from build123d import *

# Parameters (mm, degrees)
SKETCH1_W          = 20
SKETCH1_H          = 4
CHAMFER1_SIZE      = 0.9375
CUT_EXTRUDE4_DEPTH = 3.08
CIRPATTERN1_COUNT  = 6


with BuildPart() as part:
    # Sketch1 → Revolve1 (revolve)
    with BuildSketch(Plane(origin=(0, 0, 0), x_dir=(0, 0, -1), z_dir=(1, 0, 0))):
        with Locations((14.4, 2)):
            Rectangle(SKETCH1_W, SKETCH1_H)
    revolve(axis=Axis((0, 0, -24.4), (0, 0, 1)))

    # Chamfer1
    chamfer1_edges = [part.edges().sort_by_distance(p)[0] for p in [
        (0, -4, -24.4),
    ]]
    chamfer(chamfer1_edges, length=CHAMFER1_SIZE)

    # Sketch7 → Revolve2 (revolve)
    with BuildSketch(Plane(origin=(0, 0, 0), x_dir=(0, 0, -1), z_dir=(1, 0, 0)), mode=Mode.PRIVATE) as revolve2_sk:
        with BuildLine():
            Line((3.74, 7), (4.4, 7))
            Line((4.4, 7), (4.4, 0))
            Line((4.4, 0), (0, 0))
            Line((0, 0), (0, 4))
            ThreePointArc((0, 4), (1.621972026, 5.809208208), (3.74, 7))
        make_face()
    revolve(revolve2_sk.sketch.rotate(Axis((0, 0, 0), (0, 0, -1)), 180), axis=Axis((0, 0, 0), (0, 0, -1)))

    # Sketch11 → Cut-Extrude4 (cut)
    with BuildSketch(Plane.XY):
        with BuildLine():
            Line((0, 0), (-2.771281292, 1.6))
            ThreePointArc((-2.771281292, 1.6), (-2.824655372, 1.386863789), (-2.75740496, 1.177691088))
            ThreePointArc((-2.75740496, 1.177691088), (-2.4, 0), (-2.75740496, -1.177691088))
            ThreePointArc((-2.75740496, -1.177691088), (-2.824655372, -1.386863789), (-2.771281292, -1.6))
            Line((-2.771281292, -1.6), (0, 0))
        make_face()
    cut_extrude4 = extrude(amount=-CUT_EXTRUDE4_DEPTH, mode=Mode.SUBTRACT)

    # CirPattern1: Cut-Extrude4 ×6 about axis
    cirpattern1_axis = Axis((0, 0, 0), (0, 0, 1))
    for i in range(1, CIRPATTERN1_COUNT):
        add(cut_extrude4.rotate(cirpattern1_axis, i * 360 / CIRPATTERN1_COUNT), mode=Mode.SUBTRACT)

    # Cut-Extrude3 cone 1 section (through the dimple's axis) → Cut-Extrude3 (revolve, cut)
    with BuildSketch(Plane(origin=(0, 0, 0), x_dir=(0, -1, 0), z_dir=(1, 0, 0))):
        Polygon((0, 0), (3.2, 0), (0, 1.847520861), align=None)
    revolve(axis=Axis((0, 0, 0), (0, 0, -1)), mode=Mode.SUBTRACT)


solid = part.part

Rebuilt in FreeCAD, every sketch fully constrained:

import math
import FreeCAD as App
import Part
import Sketcher
Q = App.Units.Quantity


def edges_at(feature, points):
    """Names of the edges that pass closest to the given points."""
    edges = feature.Shape.Edges
    near = lambda p: min(range(len(edges)), key=lambda i: edges[i].distToShape(Part.Vertex(*p))[0])
    return sorted({f"Edge{near(p) + 1}" for p in points})

doc = App.newDocument("Part")
params = doc.addObject("Spreadsheet::Sheet", "Params")
for row, (alias, value) in enumerate([
    ("sketch1_width", "4 mm"),
    ("sketch1_height", "20 mm"),
    ("revolution_angle", "360 deg"),
    ("chamfer_size", "0.9375 mm"),
    ("sketch2_width", "4 mm"),
    ("sketch2_width2", "7 mm"),
    ("sketch2_height", "4.4 mm"),
    ("sketch2_height2", "0.66 mm"),
    ("revolution2_angle", "360 deg"),
    ("sketch3_radius", "0.4 mm"),
    ("sketch3_length", "3.2 mm"),
    ("pocket1_length", "3.08 mm"),
    ("sketch4_width", "3.2 mm"),
    ("groove_angle", "360 deg"),
], start=1):
    params.set(f"A{row}", alias)
    params.set(f"B{row}", "=" + value)
    params.setAlias(f"B{row}", alias)

body = doc.addObject("PartDesign::Body", "Body")

# Sketch on YZ plane
sketch1 = body.newObject("Sketcher::SketchObject", "Sketch")
sketch1.AttachmentSupport = (doc.getObject("YZ_Plane"), [""])
sketch1.MapMode = "FlatFace"
sketch1.addGeometry(Part.LineSegment(App.Vector(4, -4.4, 0), App.Vector(0, -4.4, 0)), False)
sketch1.addGeometry(Part.LineSegment(App.Vector(0, -4.4, 0), App.Vector(0, -24.4, 0)), False)
sketch1.addGeometry(Part.LineSegment(App.Vector(0, -24.4, 0), App.Vector(4, -24.4, 0)), False)
sketch1.addGeometry(Part.LineSegment(App.Vector(4, -24.4, 0), App.Vector(4, -4.4, 0)), False)
sketch1.addConstraint(Sketcher.Constraint("Coincident", 0, 2, 1, 1))
sketch1.addConstraint(Sketcher.Constraint("Coincident", 1, 2, 2, 1))
sketch1.addConstraint(Sketcher.Constraint("Coincident", 2, 2, 3, 1))
sketch1.addConstraint(Sketcher.Constraint("Coincident", 3, 2, 0, 1))
sketch1.addConstraint(Sketcher.Constraint("Horizontal", 0))
sketch1.addConstraint(Sketcher.Constraint("Vertical", 1))
sketch1.addConstraint(Sketcher.Constraint("Horizontal", 2))
sketch1.addConstraint(Sketcher.Constraint("Vertical", 3))
sketch1.addConstraint(Sketcher.Constraint("PointOnObject", 0, 2, -2))
sketch1.addConstraint(Sketcher.Constraint("DistanceX", 0, 2, 0, 1, 4.0))
sketch1.addConstraint(Sketcher.Constraint("DistanceY", 1, 2, 1, 1, 20.0))
sketch1.addConstraint(Sketcher.Constraint("DistanceY", 0, 2, -1, 1, 4.4))
sketch1.setExpression("Constraints[9]", "Params.sketch1_width")
sketch1.setExpression("Constraints[10]", "Params.sketch1_height")
revolution = body.newObject("PartDesign::Revolution", "Revolution")
revolution.Profile = sketch1
revolution.ReferenceAxis = (sketch1, ["V_Axis"])
revolution.setExpression("Angle", "Params.revolution_angle")
doc.recompute()

chamfer = body.newObject("PartDesign::Chamfer", "Chamfer")
chamfer.Base = (revolution, edges_at(revolution, [(0, -4, -24.4)]))
chamfer.setExpression("Size", "Params.chamfer_size")

# Sketch on YZ plane
sketch2 = body.newObject("Sketcher::SketchObject", "Sketch001")
sketch2.AttachmentSupport = (doc.getObject("YZ_Plane"), [""])
sketch2.MapMode = "FlatFace"
sketch2.addGeometry(Part.LineSegment(App.Vector(7, -4.4, 0), App.Vector(7, -3.74, 0)), False)
sketch2.addGeometry(Part.ArcOfCircle(Part.Circle(App.Vector(0, -6.281765, 0), App.Vector(0, 0, 1), 7.447185), math.radians(19.956427), math.radians(57.512494)), False)
sketch2.addGeometry(Part.LineSegment(App.Vector(4, 0, 0), App.Vector(0, 0, 0)), False)
sketch2.addGeometry(Part.LineSegment(App.Vector(0, 0, 0), App.Vector(0, -4.4, 0)), False)
sketch2.addGeometry(Part.LineSegment(App.Vector(0, -4.4, 0), App.Vector(7, -4.4, 0)), False)
sketch2.addConstraint(Sketcher.Constraint("Coincident", 0, 2, 1, 1))
sketch2.addConstraint(Sketcher.Constraint("Coincident", 1, 2, 2, 1))
sketch2.addConstraint(Sketcher.Constraint("Coincident", 2, 2, 3, 1))
sketch2.addConstraint(Sketcher.Constraint("Coincident", 3, 2, 4, 1))
sketch2.addConstraint(Sketcher.Constraint("Coincident", 4, 2, 0, 1))
sketch2.addConstraint(Sketcher.Constraint("Vertical", 0))
sketch2.addConstraint(Sketcher.Constraint("Horizontal", 2))
sketch2.addConstraint(Sketcher.Constraint("Vertical", 3))
sketch2.addConstraint(Sketcher.Constraint("Horizontal", 4))
sketch2.addConstraint(Sketcher.Constraint("Coincident", 2, 2, -1, 1))
sketch2.addConstraint(Sketcher.Constraint("PointOnObject", 1, 3, -2))
sketch2.addConstraint(Sketcher.Constraint("DistanceX", 2, 2, 2, 1, 4.0))
sketch2.addConstraint(Sketcher.Constraint("DistanceX", 4, 1, 4, 2, 7.0))
sketch2.addConstraint(Sketcher.Constraint("DistanceY", 3, 2, 3, 1, 4.4))
sketch2.addConstraint(Sketcher.Constraint("DistanceY", 0, 1, 0, 2, 0.66))
sketch2.setExpression("Constraints[11]", "Params.sketch2_width")
sketch2.setExpression("Constraints[12]", "Params.sketch2_width2")
sketch2.setExpression("Constraints[13]", "Params.sketch2_height")
sketch2.setExpression("Constraints[14]", "Params.sketch2_height2")
revolution2 = body.newObject("PartDesign::Revolution", "Revolution001")
revolution2.Profile = sketch2
revolution2.ReferenceAxis = (sketch2, ["V_Axis"])
revolution2.setExpression("Angle", "Params.revolution2_angle")

# Sketch on XY plane
sketch3 = body.newObject("Sketcher::SketchObject", "Sketch002")
sketch3.AttachmentSupport = (doc.getObject("XY_Plane"), [""])
sketch3.MapMode = "FlatFace"
sketch3.addGeometry(Part.LineSegment(App.Vector(0, 0, 0), App.Vector(-2.771281, 1.6, 0)), False)
sketch3.addGeometry(Part.ArcOfCircle(Part.Circle(App.Vector(-2.424871, 1.4, 0), App.Vector(0, 0, 1), 0.4), math.radians(150), math.radians(213.763924)), False)
sketch3.addGeometry(Part.ArcOfCircle(Part.Circle(App.Vector(-4.519017, 0, 0), App.Vector(0, 0, 1), 2.119017), math.radians(-33.763924), math.radians(33.763924)), False)
sketch3.addGeometry(Part.ArcOfCircle(Part.Circle(App.Vector(-2.424871, -1.4, 0), App.Vector(0, 0, 1), 0.4), math.radians(146.236076), math.radians(210)), False)
sketch3.addGeometry(Part.LineSegment(App.Vector(-2.771281, -1.6, 0), App.Vector(0, 0, 0)), False)
sketch3.addConstraint(Sketcher.Constraint("Coincident", 0, 2, 1, 1))
sketch3.addConstraint(Sketcher.Constraint("Tangent", 1, 2, 2, 2))
sketch3.addConstraint(Sketcher.Constraint("Tangent", 2, 1, 3, 1))
sketch3.addConstraint(Sketcher.Constraint("Coincident", 3, 2, 4, 1))
sketch3.addConstraint(Sketcher.Constraint("Coincident", 4, 2, 0, 1))
sketch3.addConstraint(Sketcher.Constraint("Coincident", 4, 2, -1, 1))
sketch3.addConstraint(Sketcher.Constraint("Equal", 1, 3))
sketch3.addConstraint(Sketcher.Constraint("Symmetric", 1, 3, 3, 3, -1))
sketch3.addConstraint(Sketcher.Constraint("Vertical", 0, 2, 3, 2))
sketch3.addConstraint(Sketcher.Constraint("Radius", 1, 0.4))
sketch3.addConstraint(Sketcher.Constraint("Angle", 0, Q("150 deg")))
sketch3.addConstraint(Sketcher.Constraint("DistanceY", 3, 3, 0, 2, 3.0))
sketch3.addConstraint(Sketcher.Constraint("Distance", 0, 3.2))
sketch3.addConstraint(Sketcher.Constraint("Radius", 2, 2.119017))
sketch3.setExpression("Constraints[9]", "Params.sketch3_radius")
sketch3.setExpression("Constraints[12]", "Params.sketch3_length")
pocket1 = body.newObject("PartDesign::Pocket", "Pocket")
pocket1.Profile = sketch3
pocket1.setExpression("Length", "Params.pocket1_length")
doc.recompute()

polarpattern = body.newObject("PartDesign::PolarPattern", "PolarPattern")
polarpattern.Originals = [pocket1]
polarpattern.Axis = (doc.getObject("Z_Axis"), [""])
polarpattern.Angle = 360
polarpattern.Occurrences = 6
body.Tip = polarpattern

# Sketch on YZ plane
sketch4 = body.newObject("Sketcher::SketchObject", "Sketch003")
sketch4.AttachmentSupport = (doc.getObject("YZ_Plane"), [""])
sketch4.MapMode = "FlatFace"
sketch4.addGeometry(Part.LineSegment(App.Vector(0, 0, 0), App.Vector(-3.2, 0, 0)), False)
sketch4.addGeometry(Part.LineSegment(App.Vector(-3.2, 0, 0), App.Vector(0, -1.847521, 0)), False)
sketch4.addGeometry(Part.LineSegment(App.Vector(0, -1.847521, 0), App.Vector(0, 0, 0)), False)
sketch4.addConstraint(Sketcher.Constraint("Coincident", 0, 2, 1, 1))
sketch4.addConstraint(Sketcher.Constraint("Coincident", 1, 2, 2, 1))
sketch4.addConstraint(Sketcher.Constraint("Coincident", 2, 2, 0, 1))
sketch4.addConstraint(Sketcher.Constraint("Horizontal", 0))
sketch4.addConstraint(Sketcher.Constraint("Vertical", 2))
sketch4.addConstraint(Sketcher.Constraint("Coincident", 2, 2, -1, 1))
sketch4.addConstraint(Sketcher.Constraint("Angle", 1, Q("-30 deg")))
sketch4.addConstraint(Sketcher.Constraint("DistanceX", 0, 2, 0, 1, 3.2))
sketch4.setExpression("Constraints[7]", "Params.sketch4_width")
groove = body.newObject("PartDesign::Groove", "Groove")
groove.Profile = sketch4
groove.ReferenceAxis = (sketch4, ["V_Axis"])
groove.setExpression("Angle", "Params.groove_angle")

doc.recompute()
